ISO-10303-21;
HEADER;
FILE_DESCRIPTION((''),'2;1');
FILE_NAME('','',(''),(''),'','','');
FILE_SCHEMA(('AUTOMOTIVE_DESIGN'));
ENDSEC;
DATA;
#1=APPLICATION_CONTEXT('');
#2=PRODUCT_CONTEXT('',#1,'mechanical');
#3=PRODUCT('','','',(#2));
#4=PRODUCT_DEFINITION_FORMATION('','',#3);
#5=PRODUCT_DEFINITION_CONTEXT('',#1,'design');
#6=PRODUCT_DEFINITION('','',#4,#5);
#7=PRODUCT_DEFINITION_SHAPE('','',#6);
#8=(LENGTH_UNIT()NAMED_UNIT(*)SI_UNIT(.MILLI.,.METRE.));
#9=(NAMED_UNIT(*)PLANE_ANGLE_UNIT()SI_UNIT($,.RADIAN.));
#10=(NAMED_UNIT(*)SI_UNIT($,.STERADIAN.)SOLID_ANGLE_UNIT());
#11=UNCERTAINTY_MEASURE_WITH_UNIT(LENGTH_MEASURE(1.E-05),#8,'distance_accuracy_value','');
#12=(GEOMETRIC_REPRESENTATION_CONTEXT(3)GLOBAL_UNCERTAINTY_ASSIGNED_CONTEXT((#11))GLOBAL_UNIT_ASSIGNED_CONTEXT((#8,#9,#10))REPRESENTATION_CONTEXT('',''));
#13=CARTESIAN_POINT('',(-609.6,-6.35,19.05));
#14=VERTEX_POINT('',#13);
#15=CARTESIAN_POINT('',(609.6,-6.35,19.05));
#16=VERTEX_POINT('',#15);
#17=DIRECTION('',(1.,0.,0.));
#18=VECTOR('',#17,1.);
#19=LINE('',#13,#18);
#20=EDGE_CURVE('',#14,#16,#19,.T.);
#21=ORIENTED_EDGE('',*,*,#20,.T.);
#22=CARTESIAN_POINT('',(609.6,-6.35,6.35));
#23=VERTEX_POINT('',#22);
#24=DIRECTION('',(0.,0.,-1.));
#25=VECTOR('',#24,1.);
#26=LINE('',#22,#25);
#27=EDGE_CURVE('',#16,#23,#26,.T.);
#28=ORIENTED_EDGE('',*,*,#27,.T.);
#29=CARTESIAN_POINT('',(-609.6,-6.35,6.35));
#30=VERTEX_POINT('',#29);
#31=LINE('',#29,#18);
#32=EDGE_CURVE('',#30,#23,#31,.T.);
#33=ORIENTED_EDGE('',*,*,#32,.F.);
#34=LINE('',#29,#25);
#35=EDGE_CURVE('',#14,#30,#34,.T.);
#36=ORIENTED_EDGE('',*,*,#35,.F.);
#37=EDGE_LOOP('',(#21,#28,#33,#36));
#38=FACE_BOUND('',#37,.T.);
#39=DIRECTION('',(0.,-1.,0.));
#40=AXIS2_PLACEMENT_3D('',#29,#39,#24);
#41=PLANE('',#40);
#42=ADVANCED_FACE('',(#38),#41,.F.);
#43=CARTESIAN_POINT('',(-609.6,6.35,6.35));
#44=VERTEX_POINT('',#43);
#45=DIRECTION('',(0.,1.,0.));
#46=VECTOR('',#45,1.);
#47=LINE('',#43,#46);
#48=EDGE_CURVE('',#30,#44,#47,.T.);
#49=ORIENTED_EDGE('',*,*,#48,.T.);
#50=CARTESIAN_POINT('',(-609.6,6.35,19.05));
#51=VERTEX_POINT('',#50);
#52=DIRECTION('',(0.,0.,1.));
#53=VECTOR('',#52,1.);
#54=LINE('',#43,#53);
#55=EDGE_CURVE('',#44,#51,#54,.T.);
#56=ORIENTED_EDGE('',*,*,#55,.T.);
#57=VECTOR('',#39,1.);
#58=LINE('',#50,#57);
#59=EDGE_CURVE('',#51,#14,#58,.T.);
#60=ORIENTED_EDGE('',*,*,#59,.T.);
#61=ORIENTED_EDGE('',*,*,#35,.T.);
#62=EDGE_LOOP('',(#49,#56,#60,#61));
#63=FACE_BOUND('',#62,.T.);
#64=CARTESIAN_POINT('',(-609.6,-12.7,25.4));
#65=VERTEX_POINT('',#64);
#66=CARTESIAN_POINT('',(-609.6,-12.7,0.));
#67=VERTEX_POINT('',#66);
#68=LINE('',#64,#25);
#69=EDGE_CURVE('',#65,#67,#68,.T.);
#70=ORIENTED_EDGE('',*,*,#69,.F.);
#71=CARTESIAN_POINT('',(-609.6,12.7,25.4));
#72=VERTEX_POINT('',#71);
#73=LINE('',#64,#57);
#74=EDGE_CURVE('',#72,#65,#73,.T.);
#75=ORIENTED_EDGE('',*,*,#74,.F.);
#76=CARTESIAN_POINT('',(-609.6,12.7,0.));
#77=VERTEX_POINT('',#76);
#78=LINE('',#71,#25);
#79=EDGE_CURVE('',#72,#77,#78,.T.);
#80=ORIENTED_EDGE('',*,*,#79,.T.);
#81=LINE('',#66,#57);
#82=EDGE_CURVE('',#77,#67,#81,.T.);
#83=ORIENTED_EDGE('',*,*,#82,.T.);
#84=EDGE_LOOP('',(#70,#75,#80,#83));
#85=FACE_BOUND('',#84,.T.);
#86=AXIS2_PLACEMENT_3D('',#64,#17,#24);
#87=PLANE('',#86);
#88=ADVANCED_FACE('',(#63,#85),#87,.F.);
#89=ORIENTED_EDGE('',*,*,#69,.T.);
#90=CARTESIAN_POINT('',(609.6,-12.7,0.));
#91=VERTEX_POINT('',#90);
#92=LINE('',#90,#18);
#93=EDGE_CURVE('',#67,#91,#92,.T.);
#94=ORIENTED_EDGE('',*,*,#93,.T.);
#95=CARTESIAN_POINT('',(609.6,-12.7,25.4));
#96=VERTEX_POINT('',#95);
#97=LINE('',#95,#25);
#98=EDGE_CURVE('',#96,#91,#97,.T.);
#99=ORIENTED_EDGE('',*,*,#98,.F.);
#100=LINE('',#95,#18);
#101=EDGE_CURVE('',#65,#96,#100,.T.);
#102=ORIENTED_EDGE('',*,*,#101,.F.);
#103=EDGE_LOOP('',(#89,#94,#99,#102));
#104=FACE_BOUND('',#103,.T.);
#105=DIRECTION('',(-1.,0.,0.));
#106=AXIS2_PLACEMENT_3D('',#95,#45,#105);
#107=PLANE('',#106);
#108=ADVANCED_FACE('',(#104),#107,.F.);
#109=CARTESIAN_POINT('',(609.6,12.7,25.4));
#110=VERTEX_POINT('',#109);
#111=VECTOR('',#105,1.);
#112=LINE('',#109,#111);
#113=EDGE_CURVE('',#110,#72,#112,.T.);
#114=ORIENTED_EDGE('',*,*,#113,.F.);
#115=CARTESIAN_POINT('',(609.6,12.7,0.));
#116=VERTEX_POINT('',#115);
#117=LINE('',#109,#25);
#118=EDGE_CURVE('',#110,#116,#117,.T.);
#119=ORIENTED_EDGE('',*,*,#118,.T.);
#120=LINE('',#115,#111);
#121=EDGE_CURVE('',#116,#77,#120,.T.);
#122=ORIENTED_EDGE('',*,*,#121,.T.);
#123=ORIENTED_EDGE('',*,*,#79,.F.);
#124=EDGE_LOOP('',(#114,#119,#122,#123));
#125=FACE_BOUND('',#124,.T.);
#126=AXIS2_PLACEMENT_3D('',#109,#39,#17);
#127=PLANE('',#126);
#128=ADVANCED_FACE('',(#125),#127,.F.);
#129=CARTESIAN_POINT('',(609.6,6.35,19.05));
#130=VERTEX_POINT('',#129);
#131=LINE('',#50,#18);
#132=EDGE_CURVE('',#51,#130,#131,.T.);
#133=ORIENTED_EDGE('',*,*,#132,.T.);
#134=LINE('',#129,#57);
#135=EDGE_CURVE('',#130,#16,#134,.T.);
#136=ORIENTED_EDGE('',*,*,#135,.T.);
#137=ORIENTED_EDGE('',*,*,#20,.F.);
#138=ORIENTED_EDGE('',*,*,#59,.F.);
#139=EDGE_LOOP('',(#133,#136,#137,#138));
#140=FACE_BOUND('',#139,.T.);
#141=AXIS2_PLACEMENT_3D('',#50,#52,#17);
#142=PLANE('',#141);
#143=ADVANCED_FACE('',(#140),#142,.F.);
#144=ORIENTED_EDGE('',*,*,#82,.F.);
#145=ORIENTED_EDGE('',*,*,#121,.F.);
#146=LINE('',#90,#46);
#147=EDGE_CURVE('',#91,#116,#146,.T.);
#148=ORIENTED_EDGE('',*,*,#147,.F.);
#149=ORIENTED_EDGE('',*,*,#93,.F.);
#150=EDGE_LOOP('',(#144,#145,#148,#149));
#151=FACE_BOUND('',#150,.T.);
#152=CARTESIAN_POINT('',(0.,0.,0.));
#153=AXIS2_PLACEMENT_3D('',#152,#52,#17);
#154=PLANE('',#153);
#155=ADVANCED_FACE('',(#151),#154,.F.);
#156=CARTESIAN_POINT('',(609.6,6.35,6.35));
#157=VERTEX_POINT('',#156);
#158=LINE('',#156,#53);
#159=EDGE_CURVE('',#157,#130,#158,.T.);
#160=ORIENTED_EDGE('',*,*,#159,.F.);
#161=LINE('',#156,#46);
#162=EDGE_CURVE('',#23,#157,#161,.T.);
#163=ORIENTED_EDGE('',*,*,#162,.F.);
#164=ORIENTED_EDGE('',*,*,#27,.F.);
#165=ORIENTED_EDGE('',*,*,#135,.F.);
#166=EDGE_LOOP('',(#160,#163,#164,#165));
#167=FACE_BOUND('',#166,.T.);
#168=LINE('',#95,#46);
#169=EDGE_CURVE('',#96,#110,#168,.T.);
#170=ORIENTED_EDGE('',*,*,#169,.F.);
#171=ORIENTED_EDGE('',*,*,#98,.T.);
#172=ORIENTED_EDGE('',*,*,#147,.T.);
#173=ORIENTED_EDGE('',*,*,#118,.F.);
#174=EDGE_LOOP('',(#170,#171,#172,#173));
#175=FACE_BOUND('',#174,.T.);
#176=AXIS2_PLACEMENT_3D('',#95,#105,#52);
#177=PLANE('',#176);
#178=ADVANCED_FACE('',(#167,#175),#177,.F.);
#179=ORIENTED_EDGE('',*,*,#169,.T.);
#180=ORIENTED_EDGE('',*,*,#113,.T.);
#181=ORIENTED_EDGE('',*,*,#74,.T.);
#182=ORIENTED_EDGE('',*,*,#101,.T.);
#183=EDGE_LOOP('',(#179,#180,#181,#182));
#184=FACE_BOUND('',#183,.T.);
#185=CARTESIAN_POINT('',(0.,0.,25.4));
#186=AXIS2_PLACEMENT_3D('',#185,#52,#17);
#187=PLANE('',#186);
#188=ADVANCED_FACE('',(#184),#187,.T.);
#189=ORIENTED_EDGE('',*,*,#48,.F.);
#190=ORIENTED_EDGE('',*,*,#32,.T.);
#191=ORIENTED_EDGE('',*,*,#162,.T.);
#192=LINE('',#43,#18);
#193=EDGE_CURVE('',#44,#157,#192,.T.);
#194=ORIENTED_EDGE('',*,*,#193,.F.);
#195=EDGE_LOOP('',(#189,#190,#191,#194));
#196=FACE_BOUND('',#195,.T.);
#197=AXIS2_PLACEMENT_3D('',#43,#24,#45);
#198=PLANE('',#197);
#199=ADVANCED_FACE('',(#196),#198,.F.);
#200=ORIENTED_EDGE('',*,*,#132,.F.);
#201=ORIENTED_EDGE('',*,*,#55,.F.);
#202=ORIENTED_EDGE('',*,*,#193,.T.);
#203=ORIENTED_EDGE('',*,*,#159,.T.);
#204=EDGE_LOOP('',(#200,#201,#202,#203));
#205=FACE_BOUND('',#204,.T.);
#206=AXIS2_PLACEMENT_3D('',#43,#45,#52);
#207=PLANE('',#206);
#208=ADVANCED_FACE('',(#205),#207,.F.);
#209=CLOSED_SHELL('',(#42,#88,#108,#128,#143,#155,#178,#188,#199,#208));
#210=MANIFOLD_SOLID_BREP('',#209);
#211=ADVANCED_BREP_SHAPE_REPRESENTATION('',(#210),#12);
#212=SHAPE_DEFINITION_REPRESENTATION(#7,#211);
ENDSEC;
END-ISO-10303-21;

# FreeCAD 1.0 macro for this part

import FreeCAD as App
import Part
import Sketcher
from FreeCAD import Vector
Q = App.Units.Quantity


def add_polygon(sketch, points):
    """Adds a closed chain of lines whose ends are joined by coincident constraints."""
    first, n = sketch.GeometryCount, len(points)
    for a, b in zip(points, points[1:] + points[:1]):
        sketch.addGeometry(Part.LineSegment(App.Vector(*a, 0), App.Vector(*b, 0)), False)
    for i in range(n):
        sketch.addConstraint(Sketcher.Constraint("Coincident", first + i, 2, first + (i + 1) % n, 1))

doc = App.newDocument("Part")
body = doc.addObject("PartDesign::Body", "Body")

# Sketch on XY plane
sketch1 = body.newObject("Sketcher::SketchObject", "Sketch")
sketch1.AttachmentSupport = (doc.getObject("XY_Plane"), [""])
sketch1.MapMode = "FlatFace"
add_polygon(sketch1, [(-610, 13), (-610, -13), (610, -13), (610, 13)])  # lines 0-3
sketch1.addConstraint([
    Sketcher.Constraint("Vertical", 0),
    Sketcher.Constraint("Horizontal", 1),
    Sketcher.Constraint("Vertical", 2),
    Sketcher.Constraint("Horizontal", 3),
    Sketcher.Constraint("Symmetric", 0, 2, 2, 2, -1, 1),
    Sketcher.Constraint("DistanceX", 1, 1, 1, 2, Q("48 in")),
    Sketcher.Constraint("DistanceY", 0, 2, 0, 1, Q("1 in")),
])
pad1 = body.newObject("PartDesign::Pad", "Pad")
pad1.Profile = sketch1
pad1.Length = Q("1 in")

# Sketch on YZ plane
sketch2 = body.newObject("Sketcher::SketchObject", "Sketch001")
sketch2.AttachmentSupport = (doc.getObject("YZ_Plane"), [""])
sketch2.MapMode = "FlatFace"
sketch2.AttachmentOffset = App.Placement(Vector(0, 0, 24 * 25.4), App.Rotation())
add_polygon(sketch2, [(6, 19), (-6, 19), (-6, 6), (6, 6)])  # lines 0-3
sketch2.addConstraint([
    Sketcher.Constraint("Horizontal", 0),
    Sketcher.Constraint("Vertical", 1),
    Sketcher.Constraint("Horizontal", 2),
    Sketcher.Constraint("Vertical", 3),
    Sketcher.Constraint("Equal", 2, 1),
    Sketcher.Constraint("DistanceX", 0, 2, 0, 1, Q("0.5 in")),
    Sketcher.Constraint("DistanceX", 0, 2, -1, 1, Q("0.25 in")),
    Sketcher.Constraint("DistanceY", -1, 1, 0, 2, Q("0.75 in")),
])
pocket1 = body.newObject("PartDesign::Pocket", "Pocket")
pocket1.Profile = sketch2
pocket1.Type = "ThroughAll"

doc.recompute()
